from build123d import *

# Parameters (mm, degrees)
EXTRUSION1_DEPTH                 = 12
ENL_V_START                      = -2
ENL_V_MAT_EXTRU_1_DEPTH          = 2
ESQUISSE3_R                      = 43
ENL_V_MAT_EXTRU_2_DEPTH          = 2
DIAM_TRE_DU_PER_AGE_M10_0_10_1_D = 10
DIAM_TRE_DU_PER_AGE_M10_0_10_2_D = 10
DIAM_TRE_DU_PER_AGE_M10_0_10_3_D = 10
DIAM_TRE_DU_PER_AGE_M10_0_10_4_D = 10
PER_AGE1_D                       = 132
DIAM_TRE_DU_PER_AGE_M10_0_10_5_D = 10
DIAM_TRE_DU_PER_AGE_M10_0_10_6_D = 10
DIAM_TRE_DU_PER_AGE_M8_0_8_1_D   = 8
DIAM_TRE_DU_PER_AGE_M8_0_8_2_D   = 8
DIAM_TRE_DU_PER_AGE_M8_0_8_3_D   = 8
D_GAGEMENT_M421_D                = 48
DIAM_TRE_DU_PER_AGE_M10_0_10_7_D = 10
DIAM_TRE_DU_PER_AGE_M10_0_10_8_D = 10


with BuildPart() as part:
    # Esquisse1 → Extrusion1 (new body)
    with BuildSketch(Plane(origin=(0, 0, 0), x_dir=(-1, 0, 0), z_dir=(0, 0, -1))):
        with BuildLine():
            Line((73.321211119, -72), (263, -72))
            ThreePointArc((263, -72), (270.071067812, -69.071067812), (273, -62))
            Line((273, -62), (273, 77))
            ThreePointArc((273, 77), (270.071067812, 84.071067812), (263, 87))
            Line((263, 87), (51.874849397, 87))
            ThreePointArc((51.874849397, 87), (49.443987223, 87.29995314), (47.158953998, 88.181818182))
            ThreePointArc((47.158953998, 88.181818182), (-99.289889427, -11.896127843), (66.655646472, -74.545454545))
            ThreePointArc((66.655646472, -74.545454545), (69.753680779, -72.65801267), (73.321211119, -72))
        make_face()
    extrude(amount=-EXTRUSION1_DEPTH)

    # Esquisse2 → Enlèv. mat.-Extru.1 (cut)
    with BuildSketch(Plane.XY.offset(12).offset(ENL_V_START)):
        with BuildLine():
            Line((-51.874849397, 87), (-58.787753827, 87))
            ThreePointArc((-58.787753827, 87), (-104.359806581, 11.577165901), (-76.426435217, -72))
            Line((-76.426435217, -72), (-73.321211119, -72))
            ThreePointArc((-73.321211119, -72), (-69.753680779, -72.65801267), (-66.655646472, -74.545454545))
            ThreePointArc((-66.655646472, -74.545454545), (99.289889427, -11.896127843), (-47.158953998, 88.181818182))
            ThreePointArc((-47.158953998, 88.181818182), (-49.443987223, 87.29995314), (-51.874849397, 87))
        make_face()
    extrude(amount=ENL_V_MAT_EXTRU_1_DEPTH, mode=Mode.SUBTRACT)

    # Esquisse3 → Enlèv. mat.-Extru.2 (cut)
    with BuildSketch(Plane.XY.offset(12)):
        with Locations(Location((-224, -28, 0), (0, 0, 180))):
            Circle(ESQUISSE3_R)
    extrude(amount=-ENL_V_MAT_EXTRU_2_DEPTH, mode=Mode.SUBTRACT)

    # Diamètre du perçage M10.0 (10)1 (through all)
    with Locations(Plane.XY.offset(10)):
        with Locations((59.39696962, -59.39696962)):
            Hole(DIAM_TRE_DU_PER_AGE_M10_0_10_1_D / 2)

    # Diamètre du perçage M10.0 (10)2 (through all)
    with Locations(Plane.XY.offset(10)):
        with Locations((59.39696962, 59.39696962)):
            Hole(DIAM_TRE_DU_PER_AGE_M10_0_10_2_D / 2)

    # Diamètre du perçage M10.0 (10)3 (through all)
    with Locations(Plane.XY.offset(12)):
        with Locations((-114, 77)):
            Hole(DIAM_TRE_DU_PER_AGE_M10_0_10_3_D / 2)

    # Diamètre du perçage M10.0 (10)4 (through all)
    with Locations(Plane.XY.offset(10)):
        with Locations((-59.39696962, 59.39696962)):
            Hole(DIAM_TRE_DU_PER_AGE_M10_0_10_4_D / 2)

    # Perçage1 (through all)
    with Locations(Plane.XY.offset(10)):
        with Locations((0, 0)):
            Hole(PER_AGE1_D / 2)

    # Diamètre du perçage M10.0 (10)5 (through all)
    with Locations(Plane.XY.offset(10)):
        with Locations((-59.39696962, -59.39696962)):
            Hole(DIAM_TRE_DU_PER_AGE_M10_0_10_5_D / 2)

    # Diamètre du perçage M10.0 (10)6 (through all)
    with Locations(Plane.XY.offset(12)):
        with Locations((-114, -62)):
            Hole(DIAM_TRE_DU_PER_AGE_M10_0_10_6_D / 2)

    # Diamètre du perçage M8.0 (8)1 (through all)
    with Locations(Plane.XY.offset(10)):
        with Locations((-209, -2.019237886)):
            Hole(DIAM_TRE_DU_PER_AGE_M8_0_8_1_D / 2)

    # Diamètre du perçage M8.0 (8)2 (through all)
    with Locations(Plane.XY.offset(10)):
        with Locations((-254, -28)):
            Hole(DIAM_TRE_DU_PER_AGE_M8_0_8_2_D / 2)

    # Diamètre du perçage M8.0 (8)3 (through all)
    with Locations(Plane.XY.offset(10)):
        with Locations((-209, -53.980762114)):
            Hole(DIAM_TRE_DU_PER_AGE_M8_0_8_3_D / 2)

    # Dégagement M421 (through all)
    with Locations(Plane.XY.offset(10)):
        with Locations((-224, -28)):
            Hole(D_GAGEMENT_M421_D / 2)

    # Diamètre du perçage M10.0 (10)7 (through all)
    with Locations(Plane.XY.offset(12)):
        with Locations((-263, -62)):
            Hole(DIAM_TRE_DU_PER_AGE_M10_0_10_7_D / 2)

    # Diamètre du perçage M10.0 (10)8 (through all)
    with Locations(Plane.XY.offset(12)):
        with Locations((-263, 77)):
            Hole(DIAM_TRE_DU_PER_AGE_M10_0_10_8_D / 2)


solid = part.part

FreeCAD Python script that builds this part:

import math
import FreeCAD as App
import Part
import Sketcher

V = App.Vector

doc = App.newDocument("Part")
body = doc.addObject("PartDesign::Body", "Body")

sketch1 = body.newObject("Sketcher::SketchObject", "Sketch")
sketch1.AttachmentSupport = (doc.getObject("XY_Plane"), [""])
sketch1.MapMode = "FlatFace"
sketch1.addGeometry([
    Part.LineSegment(V(-73.3, -72, 0), V(-263, -72, 0)),
    Part.ArcOfCircle(Part.Circle(V(-263, -62, 0), V(0, 0, 1), 10), math.radians(180), math.radians(270)),
    Part.LineSegment(V(-273, -62, 0), V(-273, 77, 0)),
    Part.ArcOfCircle(Part.Circle(V(-263, 77, 0), V(0, 0, 1), 10), math.radians(90), math.radians(180)),
    Part.LineSegment(V(-263, 87, 0), V(-51.9, 87, 0)),
    Part.ArcOfCircle(Part.Circle(V(-51.9, 97, 0), V(0, 0, 1), 10), math.radians(-90), math.radians(-62)),
    Part.ArcOfCircle(Part.Circle(V(0, 0, 0), V(0, 0, 1), 100), math.radians(-132), math.radians(118)),
    Part.ArcOfCircle(Part.Circle(V(-73.3, -82, 0), V(0, 0, 1), 10), math.radians(48), math.radians(90)),
], False)
sketch1.addConstraint([
    Sketcher.Constraint("Tangent", 0, 2, 1, 2),
    Sketcher.Constraint("Tangent", 1, 1, 2, 1),
    Sketcher.Constraint("Tangent", 2, 2, 3, 2),
    Sketcher.Constraint("Tangent", 3, 1, 4, 1),
    Sketcher.Constraint("Tangent", 4, 2, 5, 1),
    Sketcher.Constraint("Tangent", 5, 2, 6, 2),
    Sketcher.Constraint("Tangent", 6, 1, 7, 1),
    Sketcher.Constraint("Tangent", 7, 2, 0, 1),
    Sketcher.Constraint("Horizontal", 0),
    Sketcher.Constraint("Vertical", 2),
    Sketcher.Constraint("Horizontal", 4),
    Sketcher.Constraint("Coincident", 6, 3, -1, 1),
    Sketcher.Constraint("Equal", 1, 3),
    Sketcher.Constraint("Equal", 3, 5),
    Sketcher.Constraint("Equal", 5, 7),
    Sketcher.Constraint("Radius", 1, 10.0),
    Sketcher.Constraint("Radius", 6, 100.0),
    Sketcher.Constraint("DistanceY", 2, 1, 2, 2, 139.0),
    Sketcher.Constraint("DistanceX", 1, 3, -1, 1, 263.0),
    Sketcher.Constraint("DistanceY", 1, 3, -1, 1, 62.0),
])
pad1 = body.newObject("PartDesign::Pad", "Pad")
pad1.Profile = sketch1
pad1.Length = 12

sketch2 = body.newObject("Sketcher::SketchObject", "Sketch001")
sketch2.AttachmentSupport = (doc.getObject("XY_Plane"), [""])
sketch2.MapMode = "FlatFace"
sketch2.AttachmentOffset = App.Placement(V(0, 0, 10), App.Rotation())
sketch2.addGeometry([
    Part.LineSegment(V(-51.9, 87, 0), V(-58.8, 87, 0)),
    Part.ArcOfCircle(Part.Circle(V(0, 0, 0), V(0, 0, 1), 105), math.radians(124), math.radians(223)),
    Part.LineSegment(V(-76.4, -72, 0), V(-73.3, -72, 0)),
    Part.ArcOfCircle(Part.Circle(V(-73.3, -82, 0), V(0, 0, 1), 10), math.radians(48), math.radians(90)),
    Part.ArcOfCircle(Part.Circle(V(0, 0, 0), V(0, 0, 1), 100), math.radians(-132), math.radians(118)),
    Part.ArcOfCircle(Part.Circle(V(-51.9, 97, 0), V(0, 0, 1), 10), math.radians(-90), math.radians(-62)),
], False)
sketch2.addConstraint([
    Sketcher.Constraint("Coincident", 0, 2, 1, 1),
    Sketcher.Constraint("Coincident", 1, 2, 2, 1),
    Sketcher.Constraint("Tangent", 2, 2, 3, 2),
    Sketcher.Constraint("Tangent", 3, 1, 4, 1),
    Sketcher.Constraint("Tangent", 4, 2, 5, 2),
    Sketcher.Constraint("Tangent", 5, 1, 0, 1),
    Sketcher.Constraint("Horizontal", 0),
    Sketcher.Constraint("Horizontal", 2),
    Sketcher.Constraint("Coincident", 1, 3, -1, 1),
    Sketcher.Constraint("Coincident", 4, 3, -1, 1),
    Sketcher.Constraint("Equal", 3, 5),
    Sketcher.Constraint("Radius", 1, 105.0),
    Sketcher.Constraint("Radius", 3, 10.0),
    Sketcher.Constraint("Radius", 4, 100.0),
    Sketcher.Constraint("DistanceY", 3, 3, -1, 1, 82.0),
    Sketcher.Constraint("DistanceY", -1, 1, 5, 3, 97.0),
])
pocket1 = body.newObject("PartDesign::Pocket", "Pocket")
pocket1.Profile = sketch2
pocket1.Length = 2
pocket1.Reversed = True

sketch3 = body.newObject("Sketcher::SketchObject", "Sketch002")
sketch3.AttachmentSupport = (doc.getObject("XY_Plane"), [""])
sketch3.MapMode = "FlatFace"
sketch3.AttachmentOffset = App.Placement(V(0, 0, 12), App.Rotation())
sketch3.addGeometry(Part.Circle(V(-224, -28, 0), V(0, 0, 1), 43), False)
sketch3.addConstraint([
    Sketcher.Constraint("Diameter", 0, 86.0),
    Sketcher.Constraint("DistanceX", 0, 3, -1, 1, 224.0),
    Sketcher.Constraint("DistanceY", 0, 3, -1, 1, 28.0),
])
pocket2 = body.newObject("PartDesign::Pocket", "Pocket001")
pocket2.Profile = sketch3
pocket2.Length = 2

sketch4 = body.newObject("Sketcher::SketchObject", "Sketch003")
sketch4.AttachmentSupport = (doc.getObject("XY_Plane"), [""])
sketch4.MapMode = "FlatFace"
sketch4.AttachmentOffset = App.Placement(V(0, 0, 10), App.Rotation())
sketch4.addGeometry(Part.Circle(V(59, -59, 0), V(0, 0, 1), 5), False)
sketch4.addConstraint([
    Sketcher.Constraint("Diameter", 0, 10.0),
    Sketcher.Constraint("DistanceX", -1, 1, 0, 3, 59.39697),
    Sketcher.Constraint("DistanceY", 0, 3, -1, 1, 59.39697),
])
doc.recompute()
hole = body.newObject("PartDesign::Hole", "Hole")
hole.Profile = sketch4
hole.ThreadType = "None"
hole.Diameter = 10
hole.DepthType = "ThroughAll"

sketch5 = body.newObject("Sketcher::SketchObject", "Sketch004")
sketch5.AttachmentSupport = (doc.getObject("XY_Plane"), [""])
sketch5.MapMode = "FlatFace"
sketch5.AttachmentOffset = App.Placement(V(0, 0, 10), App.Rotation())
sketch5.addGeometry(Part.Circle(V(59, 59, 0), V(0, 0, 1), 5), False)
sketch5.addConstraint([
    Sketcher.Constraint("Diameter", 0, 10.0),
    Sketcher.Constraint("DistanceX", -1, 1, 0, 3, 59.39697),
    Sketcher.Constraint("DistanceY", -1, 1, 0, 3, 59.39697),
])
doc.recompute()
hole2 = body.newObject("PartDesign::Hole", "Hole001")
hole2.Profile = sketch5
hole2.ThreadType = "None"
hole2.Diameter = 10
hole2.DepthType = "ThroughAll"

sketch6 = body.newObject("Sketcher::SketchObject", "Sketch005")
sketch6.AttachmentSupport = (doc.getObject("XY_Plane"), [""])
sketch6.MapMode = "FlatFace"
sketch6.AttachmentOffset = App.Placement(V(0, 0, 12), App.Rotation())
sketch6.addGeometry(Part.Circle(V(-114, 77, 0), V(0, 0, 1), 5), False)
sketch6.addConstraint([
    Sketcher.Constraint("Diameter", 0, 10.0),
    Sketcher.Constraint("DistanceX", 0, 3, -1, 1, 114.0),
    Sketcher.Constraint("DistanceY", -1, 1, 0, 3, 77.0),
])
doc.recompute()
hole3 = body.newObject("PartDesign::Hole", "Hole002")
hole3.Profile = sketch6
hole3.ThreadType = "None"
hole3.Diameter = 10
hole3.DepthType = "ThroughAll"

sketch7 = body.newObject("Sketcher::SketchObject", "Sketch006")
sketch7.AttachmentSupport = (doc.getObject("XY_Plane"), [""])
sketch7.MapMode = "FlatFace"
sketch7.AttachmentOffset = App.Placement(V(0, 0, 10), App.Rotation())
sketch7.addGeometry(Part.Circle(V(-59, 59, 0), V(0, 0, 1), 5), False)
sketch7.addConstraint([
    Sketcher.Constraint("Diameter", 0, 10.0),
    Sketcher.Constraint("DistanceX", 0, 3, -1, 1, 59.39697),
    Sketcher.Constraint("DistanceY", -1, 1, 0, 3, 59.39697),
])
doc.recompute()
hole4 = body.newObject("PartDesign::Hole", "Hole003")
hole4.Profile = sketch7
hole4.ThreadType = "None"
hole4.Diameter = 10
hole4.DepthType = "ThroughAll"

sketch8 = body.newObject("Sketcher::SketchObject", "Sketch007")
sketch8.AttachmentSupport = (doc.getObject("XY_Plane"), [""])
sketch8.MapMode = "FlatFace"
sketch8.AttachmentOffset = App.Placement(V(0, 0, 10), App.Rotation())
sketch8.addGeometry(Part.Circle(V(0, 0, 0), V(0, 0, 1), 66), False)
sketch8.addConstraint([
    Sketcher.Constraint("Coincident", 0, 3, -1, 1),
    Sketcher.Constraint("Diameter", 0, 132.0),
])
doc.recompute()
hole5 = body.newObject("PartDesign::Hole", "Hole004")
hole5.Profile = sketch8
hole5.ThreadType = "None"
hole5.Diameter = 132
hole5.DepthType = "ThroughAll"

sketch9 = body.newObject("Sketcher::SketchObject", "Sketch008")
sketch9.AttachmentSupport = (doc.getObject("XY_Plane"), [""])
sketch9.MapMode = "FlatFace"
sketch9.AttachmentOffset = App.Placement(V(0, 0, 10), App.Rotation())
sketch9.addGeometry(Part.Circle(V(-59, -59, 0), V(0, 0, 1), 5), False)
sketch9.addConstraint([
    Sketcher.Constraint("Diameter", 0, 10.0),
    Sketcher.Constraint("DistanceX", 0, 3, -1, 1, 59.39697),
    Sketcher.Constraint("DistanceY", 0, 3, -1, 1, 59.39697),
])
doc.recompute()
hole6 = body.newObject("PartDesign::Hole", "Hole005")
hole6.Profile = sketch9
hole6.ThreadType = "None"
hole6.Diameter = 10
hole6.DepthType = "ThroughAll"

sketch10 = body.newObject("Sketcher::SketchObject", "Sketch009")
sketch10.AttachmentSupport = (doc.getObject("XY_Plane"), [""])
sketch10.MapMode = "FlatFace"
sketch10.AttachmentOffset = App.Placement(V(0, 0, 12), App.Rotation())
sketch10.addGeometry(Part.Circle(V(-114, -62, 0), V(0, 0, 1), 5), False)
sketch10.addConstraint([
    Sketcher.Constraint("Diameter", 0, 10.0),
    Sketcher.Constraint("DistanceX", 0, 3, -1, 1, 114.0),
    Sketcher.Constraint("DistanceY", 0, 3, -1, 1, 62.0),
])
doc.recompute()
hole7 = body.newObject("PartDesign::Hole", "Hole006")
hole7.Profile = sketch10
hole7.ThreadType = "None"
hole7.Diameter = 10
hole7.DepthType = "ThroughAll"

sketch11 = body.newObject("Sketcher::SketchObject", "Sketch010")
sketch11.AttachmentSupport = (doc.getObject("XY_Plane"), [""])
sketch11.MapMode = "FlatFace"
sketch11.AttachmentOffset = App.Placement(V(0, 0, 10), App.Rotation())
sketch11.addGeometry(Part.Circle(V(-209, -2, 0), V(0, 0, 1), 4), False)
sketch11.addConstraint([
    Sketcher.Constraint("Diameter", 0, 8.0),
    Sketcher.Constraint("DistanceX", 0, 3, -1, 1, 209.0),
    Sketcher.Constraint("DistanceY", 0, 3, -1, 1, 2.019238),
])
doc.recompute()
hole8 = body.newObject("PartDesign::Hole", "Hole007")
hole8.Profile = sketch11
hole8.ThreadType = "None"
hole8.Diameter = 8
hole8.DepthType = "ThroughAll"

sketch12 = body.newObject("Sketcher::SketchObject", "Sketch011")
sketch12.AttachmentSupport = (doc.getObject("XY_Plane"), [""])
sketch12.MapMode = "FlatFace"
sketch12.AttachmentOffset = App.Placement(V(0, 0, 10), App.Rotation())
sketch12.addGeometry(Part.Circle(V(-254, -28, 0), V(0, 0, 1), 4), False)
sketch12.addConstraint([
    Sketcher.Constraint("Diameter", 0, 8.0),
    Sketcher.Constraint("DistanceX", 0, 3, -1, 1, 254.0),
    Sketcher.Constraint("DistanceY", 0, 3, -1, 1, 28.0),
])
doc.recompute()
hole9 = body.newObject("PartDesign::Hole", "Hole008")
hole9.Profile = sketch12
hole9.ThreadType = "None"
hole9.Diameter = 8
hole9.DepthType = "ThroughAll"

sketch13 = body.newObject("Sketcher::SketchObject", "Sketch012")
sketch13.AttachmentSupport = (doc.getObject("XY_Plane"), [""])
sketch13.MapMode = "FlatFace"
sketch13.AttachmentOffset = App.Placement(V(0, 0, 10), App.Rotation())
sketch13.addGeometry(Part.Circle(V(-209, -54, 0), V(0, 0, 1), 4), False)
sketch13.addConstraint([
    Sketcher.Constraint("Diameter", 0, 8.0),
    Sketcher.Constraint("DistanceX", 0, 3, -1, 1, 209.0),
    Sketcher.Constraint("DistanceY", 0, 3, -1, 1, 53.980762),
])
doc.recompute()
hole10 = body.newObject("PartDesign::Hole", "Hole009")
hole10.Profile = sketch13
hole10.ThreadType = "None"
hole10.Diameter = 8
hole10.DepthType = "ThroughAll"

sketch14 = body.newObject("Sketcher::SketchObject", "Sketch013")
sketch14.AttachmentSupport = (doc.getObject("XY_Plane"), [""])
sketch14.MapMode = "FlatFace"
sketch14.AttachmentOffset = App.Placement(V(0, 0, 10), App.Rotation())
sketch14.addGeometry(Part.Circle(V(-224, -28, 0), V(0, 0, 1), 24), False)
sketch14.addConstraint([
    Sketcher.Constraint("Diameter", 0, 48.0),
    Sketcher.Constraint("DistanceX", 0, 3, -1, 1, 224.0),
    Sketcher.Constraint("DistanceY", 0, 3, -1, 1, 28.0),
])
doc.recompute()
hole11 = body.newObject("PartDesign::Hole", "Hole010")
hole11.Profile = sketch14
hole11.ThreadType = "None"
hole11.Diameter = 48
hole11.DepthType = "ThroughAll"

sketch15 = body.newObject("Sketcher::SketchObject", "Sketch014")
sketch15.AttachmentSupport = (doc.getObject("XY_Plane"), [""])
sketch15.MapMode = "FlatFace"
sketch15.AttachmentOffset = App.Placement(V(0, 0, 12), App.Rotation())
sketch15.addGeometry(Part.Circle(V(-263, -62, 0), V(0, 0, 1), 5), False)
sketch15.addConstraint([
    Sketcher.Constraint("Diameter", 0, 10.0),
    Sketcher.Constraint("DistanceX", 0, 3, -1, 1, 263.0),
    Sketcher.Constraint("DistanceY", 0, 3, -1, 1, 62.0),
])
doc.recompute()
hole12 = body.newObject("PartDesign::Hole", "Hole011")
hole12.Profile = sketch15
hole12.ThreadType = "None"
hole12.Diameter = 10
hole12.DepthType = "ThroughAll"

sketch16 = body.newObject("Sketcher::SketchObject", "Sketch015")
sketch16.AttachmentSupport = (doc.getObject("XY_Plane"), [""])
sketch16.MapMode = "FlatFace"
sketch16.AttachmentOffset = App.Placement(V(0, 0, 12), App.Rotation())
sketch16.addGeometry(Part.Circle(V(-263, 77, 0), V(0, 0, 1), 5), False)
sketch16.addConstraint([
    Sketcher.Constraint("Diameter", 0, 10.0),
    Sketcher.Constraint("DistanceX", 0, 3, -1, 1, 263.0),
    Sketcher.Constraint("DistanceY", -1, 1, 0, 3, 77.0),
])
doc.recompute()
hole13 = body.newObject("PartDesign::Hole", "Hole012")
hole13.Profile = sketch16
hole13.ThreadType = "None"
hole13.Diameter = 10
hole13.DepthType = "ThroughAll"

doc.recompute()
